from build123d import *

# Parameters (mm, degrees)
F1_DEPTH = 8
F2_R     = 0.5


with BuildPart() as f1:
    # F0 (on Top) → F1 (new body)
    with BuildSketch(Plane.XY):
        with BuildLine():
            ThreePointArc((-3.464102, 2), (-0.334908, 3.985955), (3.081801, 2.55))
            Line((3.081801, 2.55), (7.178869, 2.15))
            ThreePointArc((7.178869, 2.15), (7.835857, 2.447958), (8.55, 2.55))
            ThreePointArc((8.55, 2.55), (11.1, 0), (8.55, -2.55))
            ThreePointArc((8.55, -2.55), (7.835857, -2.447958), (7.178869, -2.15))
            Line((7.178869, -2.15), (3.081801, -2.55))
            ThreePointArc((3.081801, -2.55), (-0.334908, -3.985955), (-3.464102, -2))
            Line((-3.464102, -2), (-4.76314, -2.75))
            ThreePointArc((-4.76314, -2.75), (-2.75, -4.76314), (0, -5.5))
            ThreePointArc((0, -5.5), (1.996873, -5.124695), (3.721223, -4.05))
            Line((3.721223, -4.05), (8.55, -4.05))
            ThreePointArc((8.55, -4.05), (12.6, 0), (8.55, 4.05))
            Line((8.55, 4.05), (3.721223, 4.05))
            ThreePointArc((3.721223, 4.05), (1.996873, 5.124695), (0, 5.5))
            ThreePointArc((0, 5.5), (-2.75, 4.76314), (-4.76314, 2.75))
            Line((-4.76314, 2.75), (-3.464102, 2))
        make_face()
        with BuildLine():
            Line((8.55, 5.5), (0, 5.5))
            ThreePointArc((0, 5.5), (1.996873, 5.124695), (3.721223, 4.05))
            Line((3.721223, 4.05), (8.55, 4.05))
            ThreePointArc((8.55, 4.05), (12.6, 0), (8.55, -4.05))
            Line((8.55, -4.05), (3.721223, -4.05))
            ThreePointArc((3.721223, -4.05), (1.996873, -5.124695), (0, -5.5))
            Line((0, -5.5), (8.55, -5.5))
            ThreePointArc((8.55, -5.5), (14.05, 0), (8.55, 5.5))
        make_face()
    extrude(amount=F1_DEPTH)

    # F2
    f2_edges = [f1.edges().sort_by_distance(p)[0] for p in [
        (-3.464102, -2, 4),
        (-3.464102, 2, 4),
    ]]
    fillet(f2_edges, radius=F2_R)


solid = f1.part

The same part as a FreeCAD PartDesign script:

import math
import FreeCAD as App
import Part
import Sketcher

V = App.Vector
Q = App.Units.Quantity


def edges_at(feature, points):
    """Names of the edges that pass closest to the given points."""
    edges = feature.Shape.Edges
    near = lambda p: min(range(len(edges)), key=lambda i: edges[i].distToShape(Part.Vertex(*p))[0])
    return sorted({f"Edge{near(p) + 1}" for p in points})

doc = App.newDocument("Part")
body = doc.addObject("PartDesign::Body", "Body")

# Sketch on XY plane
sketch1 = doc.addObject("Sketcher::SketchObject", "Sketch")
body.addObject(sketch1)
sketch1.AttachmentSupport = (doc.XY_Plane, [""])
sketch1.MapMode = "FlatFace"
sketch1.addGeometry([
    Part.ArcOfCircle(Part.Circle(V(0, 0, 0), V(0, 0, 1), 4), math.radians(40), math.radians(150)),  # 0
    Part.LineSegment(V(3.1, 2.5, 0), V(7.2, 2.1, 0)),  # 1
    Part.ArcOfCircle(Part.Circle(V(8.6, 0, 0), V(0, 0, 1), 2.6), math.radians(90), math.radians(123)),  # 2
    Part.ArcOfCircle(Part.Circle(V(8.6, 0, 0), V(0, 0, 1), 2.5), math.radians(-90), math.radians(90)),  # 3
    Part.ArcOfCircle(Part.Circle(V(8.6, 0, 0), V(0, 0, 1), 2.6), math.radians(-123), math.radians(-90)),  # 4
    Part.LineSegment(V(7.2, -2.1, 0), V(3.1, -2.5, 0)),  # 5
    Part.ArcOfCircle(Part.Circle(V(0, 0, 0), V(0, 0, 1), 4), math.radians(-150), math.radians(-40)),  # 6
    Part.LineSegment(V(-3.5, -2, 0), V(-4.8, -2.8, 0)),  # 7
    Part.ArcOfCircle(Part.Circle(V(0, 0, 0), V(0, 0, 1), 5.5), math.radians(-150), math.radians(-90)),  # 8
    Part.LineSegment(V(0, -5.5, 0), V(8.6, -5.5, 0)),  # 9
    Part.ArcOfCircle(Part.Circle(V(8.6, 0, 0), V(0, 0, 1), 5.5), math.radians(-90), math.radians(90)),  # 10
    Part.LineSegment(V(8.6, 5.5, 0), V(0, 5.5, 0)),  # 11
    Part.ArcOfCircle(Part.Circle(V(0, 0, 0), V(0, 0, 1), 5.5), math.radians(90), math.radians(150)),  # 12
    Part.LineSegment(V(-4.8, 2.8, 0), V(-3.5, 2, 0)),  # 13
], False)
sketch1.addConstraint([
    Sketcher.Constraint("Coincident", 0, 1, 1, 1),
    Sketcher.Constraint("Coincident", 1, 2, 2, 2),
    Sketcher.Constraint("Tangent", 2, 1, 3, 2),
    Sketcher.Constraint("Tangent", 3, 1, 4, 2),
    Sketcher.Constraint("Coincident", 4, 1, 5, 1),
    Sketcher.Constraint("Coincident", 5, 2, 6, 2),
    Sketcher.Constraint("Coincident", 6, 1, 7, 1),
    Sketcher.Constraint("Coincident", 7, 2, 8, 1),
    Sketcher.Constraint("Tangent", 8, 2, 9, 1),
    Sketcher.Constraint("Tangent", 9, 2, 10, 1),
    Sketcher.Constraint("Tangent", 10, 2, 11, 1),
    Sketcher.Constraint("Tangent", 11, 2, 12, 1),
    Sketcher.Constraint("Coincident", 12, 2, 13, 1),
    Sketcher.Constraint("Coincident", 13, 2, 0, 2),
    Sketcher.Constraint("Horizontal", 9),
    Sketcher.Constraint("Horizontal", 11),
    Sketcher.Constraint("Coincident", 0, 3, -1, 1),
    Sketcher.Constraint("Coincident", 6, 3, -1, 1),
    Sketcher.Constraint("Coincident", 8, 3, -1, 1),
    Sketcher.Constraint("Coincident", 12, 3, -1, 1),
    Sketcher.Constraint("Coincident", 10, 3, 2, 3),
    Sketcher.Constraint("Equal", 2, 4),
    Sketcher.Constraint("Equal", 0, 6),
    Sketcher.Constraint("Equal", 8, 10),
    Sketcher.Constraint("Symmetric", 2, 1, 3, 1, -1),
    Sketcher.Constraint("Horizontal", 0, 1, 2, 1),
    Sketcher.Constraint("Horizontal", 3, 1, 5, 2),
    Sketcher.Constraint("Vertical", 10, 3, 2, 1),
    Sketcher.Constraint("Vertical", 1, 2, 4, 1),
    Sketcher.Constraint("Vertical", 7, 2, 12, 2),
    Sketcher.Constraint("Vertical", 6, 1, 13, 2),
    Sketcher.Constraint("Radius", 0, Q("4 mm")),
    Sketcher.Constraint("Radius", 8, Q("5.499999 mm")),
    Sketcher.Constraint("Angle", 7, Q("-149.999998 deg")),
    Sketcher.Constraint("Radius", 3, Q("2.55 mm")),
    Sketcher.Constraint("DistanceY", 6, 1, -1, 1, Q("2 mm")),
    Sketcher.Constraint("DistanceX", 9, 1, 9, 2, Q("8.55 mm")),
    Sketcher.Constraint("DistanceY", 1, 2, 0, 1, Q("0.4 mm")),
])
pad1 = doc.addObject("PartDesign::Pad", "Pad")
body.addObject(pad1)
pad1.Profile = sketch1
pad1.Length = 8
doc.recompute()

fillet = doc.addObject("PartDesign::Fillet", "Fillet")
body.addObject(fillet)
fillet.Base = (pad1, edges_at(pad1, [(-3.464, -2, 4), (-3.464, 2, 4)]))
fillet.Radius = 0.5

doc.recompute()
